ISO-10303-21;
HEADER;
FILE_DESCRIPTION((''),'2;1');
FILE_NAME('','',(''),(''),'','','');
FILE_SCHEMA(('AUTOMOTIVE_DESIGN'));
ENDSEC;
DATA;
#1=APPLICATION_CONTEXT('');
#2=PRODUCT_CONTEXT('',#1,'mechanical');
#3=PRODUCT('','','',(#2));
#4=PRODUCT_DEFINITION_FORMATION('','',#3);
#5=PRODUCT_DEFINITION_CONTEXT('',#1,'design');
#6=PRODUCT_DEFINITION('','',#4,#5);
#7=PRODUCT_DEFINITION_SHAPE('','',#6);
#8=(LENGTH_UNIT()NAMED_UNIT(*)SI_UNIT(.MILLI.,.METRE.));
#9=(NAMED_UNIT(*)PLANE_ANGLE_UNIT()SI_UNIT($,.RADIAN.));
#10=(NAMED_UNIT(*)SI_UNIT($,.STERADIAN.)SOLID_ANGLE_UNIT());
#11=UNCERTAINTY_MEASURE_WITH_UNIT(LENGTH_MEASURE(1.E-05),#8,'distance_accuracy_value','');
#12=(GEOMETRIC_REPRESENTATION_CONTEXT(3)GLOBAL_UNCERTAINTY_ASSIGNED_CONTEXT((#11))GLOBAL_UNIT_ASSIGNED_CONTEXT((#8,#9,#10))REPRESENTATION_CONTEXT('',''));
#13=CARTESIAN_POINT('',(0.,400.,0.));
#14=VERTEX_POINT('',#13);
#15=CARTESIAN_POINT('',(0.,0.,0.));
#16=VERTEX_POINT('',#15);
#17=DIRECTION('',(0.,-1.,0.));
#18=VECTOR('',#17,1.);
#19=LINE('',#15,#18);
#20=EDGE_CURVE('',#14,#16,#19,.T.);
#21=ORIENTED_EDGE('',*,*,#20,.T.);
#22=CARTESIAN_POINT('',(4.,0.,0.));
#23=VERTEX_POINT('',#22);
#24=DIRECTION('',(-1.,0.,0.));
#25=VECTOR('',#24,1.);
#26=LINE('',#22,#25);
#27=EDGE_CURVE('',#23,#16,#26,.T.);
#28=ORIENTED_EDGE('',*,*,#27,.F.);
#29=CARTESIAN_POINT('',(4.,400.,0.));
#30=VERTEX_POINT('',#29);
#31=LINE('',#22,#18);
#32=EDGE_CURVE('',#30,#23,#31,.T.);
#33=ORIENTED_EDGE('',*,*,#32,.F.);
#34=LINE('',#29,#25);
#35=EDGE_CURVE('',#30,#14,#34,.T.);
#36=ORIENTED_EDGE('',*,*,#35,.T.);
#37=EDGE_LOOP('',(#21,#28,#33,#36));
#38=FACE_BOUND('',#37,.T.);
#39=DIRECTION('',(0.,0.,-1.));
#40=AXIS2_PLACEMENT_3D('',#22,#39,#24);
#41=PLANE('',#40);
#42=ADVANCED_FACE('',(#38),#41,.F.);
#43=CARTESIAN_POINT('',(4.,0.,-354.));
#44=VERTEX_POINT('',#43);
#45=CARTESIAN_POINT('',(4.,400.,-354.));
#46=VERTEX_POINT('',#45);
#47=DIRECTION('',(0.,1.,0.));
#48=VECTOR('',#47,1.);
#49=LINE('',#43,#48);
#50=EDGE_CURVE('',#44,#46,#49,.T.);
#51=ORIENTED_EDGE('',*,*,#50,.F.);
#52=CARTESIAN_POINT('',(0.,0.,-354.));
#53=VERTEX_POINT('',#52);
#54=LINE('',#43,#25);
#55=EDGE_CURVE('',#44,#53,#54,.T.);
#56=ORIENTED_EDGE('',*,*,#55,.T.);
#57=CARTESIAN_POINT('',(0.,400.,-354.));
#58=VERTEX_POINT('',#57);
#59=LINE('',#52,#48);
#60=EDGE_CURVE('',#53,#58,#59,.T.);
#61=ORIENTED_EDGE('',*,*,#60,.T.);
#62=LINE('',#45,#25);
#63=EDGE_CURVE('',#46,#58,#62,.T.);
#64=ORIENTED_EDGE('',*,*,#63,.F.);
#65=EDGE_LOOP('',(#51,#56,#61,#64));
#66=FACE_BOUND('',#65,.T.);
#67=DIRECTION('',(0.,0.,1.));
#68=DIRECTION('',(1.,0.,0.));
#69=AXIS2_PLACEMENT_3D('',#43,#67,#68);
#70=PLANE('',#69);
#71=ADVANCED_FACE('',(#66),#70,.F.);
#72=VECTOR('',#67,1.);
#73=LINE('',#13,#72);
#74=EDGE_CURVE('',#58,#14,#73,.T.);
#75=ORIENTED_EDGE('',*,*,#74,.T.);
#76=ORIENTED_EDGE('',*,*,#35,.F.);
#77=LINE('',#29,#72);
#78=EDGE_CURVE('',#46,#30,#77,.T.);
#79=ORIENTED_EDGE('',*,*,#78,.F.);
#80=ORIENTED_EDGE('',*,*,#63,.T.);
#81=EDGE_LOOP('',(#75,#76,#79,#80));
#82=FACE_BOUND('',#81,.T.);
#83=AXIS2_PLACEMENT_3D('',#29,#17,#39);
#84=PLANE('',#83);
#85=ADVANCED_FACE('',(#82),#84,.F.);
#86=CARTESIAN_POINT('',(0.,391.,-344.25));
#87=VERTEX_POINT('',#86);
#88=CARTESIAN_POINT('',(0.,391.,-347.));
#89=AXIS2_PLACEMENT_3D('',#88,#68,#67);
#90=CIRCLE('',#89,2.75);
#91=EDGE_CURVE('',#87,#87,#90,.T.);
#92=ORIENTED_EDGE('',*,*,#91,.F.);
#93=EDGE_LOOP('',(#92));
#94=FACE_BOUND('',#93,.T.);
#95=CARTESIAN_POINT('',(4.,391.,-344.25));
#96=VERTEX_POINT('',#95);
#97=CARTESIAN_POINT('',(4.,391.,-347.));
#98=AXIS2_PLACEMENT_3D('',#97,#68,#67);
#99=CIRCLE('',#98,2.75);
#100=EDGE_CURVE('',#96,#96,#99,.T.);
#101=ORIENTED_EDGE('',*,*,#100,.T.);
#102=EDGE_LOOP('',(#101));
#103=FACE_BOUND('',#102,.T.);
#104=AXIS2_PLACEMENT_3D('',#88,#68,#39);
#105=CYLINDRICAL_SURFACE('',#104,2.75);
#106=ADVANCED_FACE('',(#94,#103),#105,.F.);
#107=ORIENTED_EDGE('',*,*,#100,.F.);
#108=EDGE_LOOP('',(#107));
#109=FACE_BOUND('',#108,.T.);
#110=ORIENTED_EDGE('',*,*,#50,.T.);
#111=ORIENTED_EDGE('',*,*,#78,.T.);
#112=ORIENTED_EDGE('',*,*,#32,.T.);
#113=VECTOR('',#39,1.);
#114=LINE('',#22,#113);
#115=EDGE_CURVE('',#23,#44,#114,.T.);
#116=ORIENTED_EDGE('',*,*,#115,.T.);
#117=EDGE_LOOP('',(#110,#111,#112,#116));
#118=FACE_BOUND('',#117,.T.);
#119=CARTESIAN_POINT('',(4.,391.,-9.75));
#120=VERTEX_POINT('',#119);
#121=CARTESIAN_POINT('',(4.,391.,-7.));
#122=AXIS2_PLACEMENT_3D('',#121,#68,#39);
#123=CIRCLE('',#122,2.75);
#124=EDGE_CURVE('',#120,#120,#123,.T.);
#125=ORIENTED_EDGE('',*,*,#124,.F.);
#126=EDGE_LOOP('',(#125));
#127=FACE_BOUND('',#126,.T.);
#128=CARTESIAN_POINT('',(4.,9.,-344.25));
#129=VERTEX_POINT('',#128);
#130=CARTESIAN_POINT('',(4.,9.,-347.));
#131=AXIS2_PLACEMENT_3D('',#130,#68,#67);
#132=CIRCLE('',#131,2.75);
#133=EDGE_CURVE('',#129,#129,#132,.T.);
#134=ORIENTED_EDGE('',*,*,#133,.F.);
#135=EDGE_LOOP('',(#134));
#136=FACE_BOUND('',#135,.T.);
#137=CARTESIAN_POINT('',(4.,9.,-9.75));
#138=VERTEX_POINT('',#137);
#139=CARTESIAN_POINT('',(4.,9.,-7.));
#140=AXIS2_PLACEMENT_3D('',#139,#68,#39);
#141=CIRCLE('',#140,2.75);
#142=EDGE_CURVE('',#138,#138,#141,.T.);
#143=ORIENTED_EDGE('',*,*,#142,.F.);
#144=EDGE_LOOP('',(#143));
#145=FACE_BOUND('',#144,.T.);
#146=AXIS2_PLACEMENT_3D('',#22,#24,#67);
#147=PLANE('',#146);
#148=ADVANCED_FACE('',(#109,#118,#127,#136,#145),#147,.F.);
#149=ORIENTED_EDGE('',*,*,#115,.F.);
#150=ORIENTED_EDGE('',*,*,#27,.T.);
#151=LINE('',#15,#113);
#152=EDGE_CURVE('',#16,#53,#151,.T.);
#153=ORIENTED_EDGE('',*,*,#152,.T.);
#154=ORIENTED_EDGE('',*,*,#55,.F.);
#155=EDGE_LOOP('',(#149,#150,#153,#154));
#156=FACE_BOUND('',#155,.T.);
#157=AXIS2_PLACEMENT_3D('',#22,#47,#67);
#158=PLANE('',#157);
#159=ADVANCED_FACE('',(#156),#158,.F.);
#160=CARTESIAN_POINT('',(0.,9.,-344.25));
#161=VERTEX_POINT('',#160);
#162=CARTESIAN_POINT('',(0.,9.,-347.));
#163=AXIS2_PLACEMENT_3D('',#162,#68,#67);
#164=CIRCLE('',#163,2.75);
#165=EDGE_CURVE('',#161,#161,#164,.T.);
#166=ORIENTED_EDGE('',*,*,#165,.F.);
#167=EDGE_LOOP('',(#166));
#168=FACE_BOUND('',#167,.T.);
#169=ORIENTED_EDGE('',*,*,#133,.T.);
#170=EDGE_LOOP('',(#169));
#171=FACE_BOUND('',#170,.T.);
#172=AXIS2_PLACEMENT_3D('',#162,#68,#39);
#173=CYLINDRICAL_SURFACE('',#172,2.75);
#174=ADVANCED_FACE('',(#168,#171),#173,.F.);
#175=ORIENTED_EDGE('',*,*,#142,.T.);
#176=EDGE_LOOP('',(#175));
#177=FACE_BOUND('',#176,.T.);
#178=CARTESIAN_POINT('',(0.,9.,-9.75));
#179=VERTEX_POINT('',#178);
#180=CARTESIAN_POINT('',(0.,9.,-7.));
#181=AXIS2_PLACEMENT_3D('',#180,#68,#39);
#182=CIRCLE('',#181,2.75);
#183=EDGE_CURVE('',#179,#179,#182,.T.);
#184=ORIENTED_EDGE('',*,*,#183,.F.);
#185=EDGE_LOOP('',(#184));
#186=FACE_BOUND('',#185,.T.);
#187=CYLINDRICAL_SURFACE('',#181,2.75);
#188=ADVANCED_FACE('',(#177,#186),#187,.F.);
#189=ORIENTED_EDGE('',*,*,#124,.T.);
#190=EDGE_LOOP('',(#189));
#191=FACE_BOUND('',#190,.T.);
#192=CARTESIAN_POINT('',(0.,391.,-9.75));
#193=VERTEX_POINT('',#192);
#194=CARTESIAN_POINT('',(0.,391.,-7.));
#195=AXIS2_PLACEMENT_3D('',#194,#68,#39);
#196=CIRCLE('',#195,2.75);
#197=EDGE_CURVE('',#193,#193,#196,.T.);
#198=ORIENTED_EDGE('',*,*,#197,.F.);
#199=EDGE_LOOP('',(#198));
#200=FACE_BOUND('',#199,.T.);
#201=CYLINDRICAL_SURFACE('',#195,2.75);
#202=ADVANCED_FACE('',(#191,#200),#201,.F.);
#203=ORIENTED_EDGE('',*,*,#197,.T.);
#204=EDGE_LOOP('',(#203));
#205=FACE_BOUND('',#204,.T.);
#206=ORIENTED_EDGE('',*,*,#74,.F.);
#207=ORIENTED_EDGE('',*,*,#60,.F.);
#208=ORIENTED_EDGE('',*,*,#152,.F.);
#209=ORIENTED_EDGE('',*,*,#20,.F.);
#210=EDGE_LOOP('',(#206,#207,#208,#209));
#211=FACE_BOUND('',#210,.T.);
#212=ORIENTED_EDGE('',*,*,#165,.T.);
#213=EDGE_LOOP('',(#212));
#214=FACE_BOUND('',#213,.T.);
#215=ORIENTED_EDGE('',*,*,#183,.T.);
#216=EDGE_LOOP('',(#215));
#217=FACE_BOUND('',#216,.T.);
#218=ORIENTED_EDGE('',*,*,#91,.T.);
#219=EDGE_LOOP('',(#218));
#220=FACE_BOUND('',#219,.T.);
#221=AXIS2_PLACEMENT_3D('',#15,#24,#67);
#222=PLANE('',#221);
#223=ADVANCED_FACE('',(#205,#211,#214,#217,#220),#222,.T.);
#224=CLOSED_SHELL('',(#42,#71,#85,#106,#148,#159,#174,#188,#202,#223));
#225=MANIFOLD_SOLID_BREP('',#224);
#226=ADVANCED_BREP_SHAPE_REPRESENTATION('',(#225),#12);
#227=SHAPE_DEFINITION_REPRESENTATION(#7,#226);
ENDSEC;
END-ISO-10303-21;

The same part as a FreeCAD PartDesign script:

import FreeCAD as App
import Part
import Sketcher

V = App.Vector


def add_polygon(sketch, points):
    """Adds a closed chain of lines whose ends are joined by coincident constraints."""
    first, n = sketch.GeometryCount, len(points)
    for a, b in zip(points, points[1:] + points[:1]):
        sketch.addGeometry(Part.LineSegment(App.Vector(*a, 0), App.Vector(*b, 0)), False)
    for i in range(n):
        sketch.addConstraint(Sketcher.Constraint("Coincident", first + i, 2, first + (i + 1) % n, 1))

doc = App.newDocument("Part")
params = doc.addObject("Spreadsheet::Sheet", "Params")
for row, (alias, value) in enumerate([
    ("sketch1_width", "400 mm"),
    ("sketch1_height", "354 mm"),
    ("pad1_length", "4 mm"),
    ("sketch2_diameter", "5.5 mm"),
    ("pocket1_length", "4 mm"),
], start=1):
    params.set(f"A{row}", alias)
    params.set(f"B{row}", "=" + value)
    params.setAlias(f"B{row}", alias)

body = doc.addObject("PartDesign::Body", "Body")

# Sketch on YZ plane
sketch1 = doc.addObject("Sketcher::SketchObject", "Sketch")
body.addObject(sketch1)
sketch1.AttachmentSupport = (doc.YZ_Plane, [""])
sketch1.MapMode = "FlatFace"
add_polygon(sketch1, [(400, 0), (0, 0), (0, -354), (400, -354)])  # lines 0-3
sketch1.addConstraint(Sketcher.Constraint("Horizontal", 0))
sketch1.addConstraint(Sketcher.Constraint("Vertical", 1))
sketch1.addConstraint(Sketcher.Constraint("Horizontal", 2))
sketch1.addConstraint(Sketcher.Constraint("Vertical", 3))
sketch1.addConstraint(Sketcher.Constraint("Coincident", 0, 2, -1, 1))
sketch1.addConstraint(Sketcher.Constraint("DistanceX", 0, 2, 0, 1, 400.0))
sketch1.addConstraint(Sketcher.Constraint("DistanceY", 1, 2, 1, 1, 354.0))
sketch1.setExpression("Constraints[9]", "Params.sketch1_width")
sketch1.setExpression("Constraints[10]", "Params.sketch1_height")
pad1 = doc.addObject("PartDesign::Pad", "Pad")
body.addObject(pad1)
pad1.Profile = sketch1
pad1.setExpression("Length", "Params.pad1_length")

# Sketch on YZ plane
sketch2 = doc.addObject("Sketcher::SketchObject", "Sketch001")
body.addObject(sketch2)
sketch2.AttachmentSupport = (doc.YZ_Plane, [""])
sketch2.MapMode = "FlatFace"
sketch2.AttachmentOffset = App.Placement(V(0, 0, 4), App.Rotation())
sketch2.addGeometry(Part.Circle(V(391, -7, 0), V(0, 0, 1), 2.8), False)
sketch2.addGeometry(Part.Circle(V(9, -7, 0), V(0, 0, 1), 2.8), False)
sketch2.addGeometry(Part.Circle(V(9, -347, 0), V(0, 0, 1), 2.8), False)
sketch2.addGeometry(Part.Circle(V(391, -347, 0), V(0, 0, 1), 2.8), False)
sketch2.addConstraint(Sketcher.Constraint("Equal", 0, 1))
sketch2.addConstraint(Sketcher.Constraint("Equal", 1, 2))
sketch2.addConstraint(Sketcher.Constraint("Equal", 2, 3))
sketch2.addConstraint(Sketcher.Constraint("Horizontal", 0, 3, 1, 3))
sketch2.addConstraint(Sketcher.Constraint("Horizontal", 2, 3, 3, 3))
sketch2.addConstraint(Sketcher.Constraint("Vertical", 1, 3, 2, 3))
sketch2.addConstraint(Sketcher.Constraint("Vertical", 0, 3, 3, 3))
sketch2.addConstraint(Sketcher.Constraint("Diameter", 0, 5.5))
sketch2.addConstraint(Sketcher.Constraint("DistanceX", -1, 1, 0, 3, 391.0))
sketch2.addConstraint(Sketcher.Constraint("DistanceY", 0, 3, -1, 1, 7.0))
sketch2.addConstraint(Sketcher.Constraint("DistanceX", -1, 1, 1, 3, 9.0))
sketch2.addConstraint(Sketcher.Constraint("DistanceY", 2, 3, -1, 1, 347.0))
sketch2.setExpression("Constraints[7]", "Params.sketch2_diameter")
pocket1 = doc.addObject("PartDesign::Pocket", "Pocket")
body.addObject(pocket1)
pocket1.Profile = sketch2
pocket1.setExpression("Length", "Params.pocket1_length")

doc.recompute()
